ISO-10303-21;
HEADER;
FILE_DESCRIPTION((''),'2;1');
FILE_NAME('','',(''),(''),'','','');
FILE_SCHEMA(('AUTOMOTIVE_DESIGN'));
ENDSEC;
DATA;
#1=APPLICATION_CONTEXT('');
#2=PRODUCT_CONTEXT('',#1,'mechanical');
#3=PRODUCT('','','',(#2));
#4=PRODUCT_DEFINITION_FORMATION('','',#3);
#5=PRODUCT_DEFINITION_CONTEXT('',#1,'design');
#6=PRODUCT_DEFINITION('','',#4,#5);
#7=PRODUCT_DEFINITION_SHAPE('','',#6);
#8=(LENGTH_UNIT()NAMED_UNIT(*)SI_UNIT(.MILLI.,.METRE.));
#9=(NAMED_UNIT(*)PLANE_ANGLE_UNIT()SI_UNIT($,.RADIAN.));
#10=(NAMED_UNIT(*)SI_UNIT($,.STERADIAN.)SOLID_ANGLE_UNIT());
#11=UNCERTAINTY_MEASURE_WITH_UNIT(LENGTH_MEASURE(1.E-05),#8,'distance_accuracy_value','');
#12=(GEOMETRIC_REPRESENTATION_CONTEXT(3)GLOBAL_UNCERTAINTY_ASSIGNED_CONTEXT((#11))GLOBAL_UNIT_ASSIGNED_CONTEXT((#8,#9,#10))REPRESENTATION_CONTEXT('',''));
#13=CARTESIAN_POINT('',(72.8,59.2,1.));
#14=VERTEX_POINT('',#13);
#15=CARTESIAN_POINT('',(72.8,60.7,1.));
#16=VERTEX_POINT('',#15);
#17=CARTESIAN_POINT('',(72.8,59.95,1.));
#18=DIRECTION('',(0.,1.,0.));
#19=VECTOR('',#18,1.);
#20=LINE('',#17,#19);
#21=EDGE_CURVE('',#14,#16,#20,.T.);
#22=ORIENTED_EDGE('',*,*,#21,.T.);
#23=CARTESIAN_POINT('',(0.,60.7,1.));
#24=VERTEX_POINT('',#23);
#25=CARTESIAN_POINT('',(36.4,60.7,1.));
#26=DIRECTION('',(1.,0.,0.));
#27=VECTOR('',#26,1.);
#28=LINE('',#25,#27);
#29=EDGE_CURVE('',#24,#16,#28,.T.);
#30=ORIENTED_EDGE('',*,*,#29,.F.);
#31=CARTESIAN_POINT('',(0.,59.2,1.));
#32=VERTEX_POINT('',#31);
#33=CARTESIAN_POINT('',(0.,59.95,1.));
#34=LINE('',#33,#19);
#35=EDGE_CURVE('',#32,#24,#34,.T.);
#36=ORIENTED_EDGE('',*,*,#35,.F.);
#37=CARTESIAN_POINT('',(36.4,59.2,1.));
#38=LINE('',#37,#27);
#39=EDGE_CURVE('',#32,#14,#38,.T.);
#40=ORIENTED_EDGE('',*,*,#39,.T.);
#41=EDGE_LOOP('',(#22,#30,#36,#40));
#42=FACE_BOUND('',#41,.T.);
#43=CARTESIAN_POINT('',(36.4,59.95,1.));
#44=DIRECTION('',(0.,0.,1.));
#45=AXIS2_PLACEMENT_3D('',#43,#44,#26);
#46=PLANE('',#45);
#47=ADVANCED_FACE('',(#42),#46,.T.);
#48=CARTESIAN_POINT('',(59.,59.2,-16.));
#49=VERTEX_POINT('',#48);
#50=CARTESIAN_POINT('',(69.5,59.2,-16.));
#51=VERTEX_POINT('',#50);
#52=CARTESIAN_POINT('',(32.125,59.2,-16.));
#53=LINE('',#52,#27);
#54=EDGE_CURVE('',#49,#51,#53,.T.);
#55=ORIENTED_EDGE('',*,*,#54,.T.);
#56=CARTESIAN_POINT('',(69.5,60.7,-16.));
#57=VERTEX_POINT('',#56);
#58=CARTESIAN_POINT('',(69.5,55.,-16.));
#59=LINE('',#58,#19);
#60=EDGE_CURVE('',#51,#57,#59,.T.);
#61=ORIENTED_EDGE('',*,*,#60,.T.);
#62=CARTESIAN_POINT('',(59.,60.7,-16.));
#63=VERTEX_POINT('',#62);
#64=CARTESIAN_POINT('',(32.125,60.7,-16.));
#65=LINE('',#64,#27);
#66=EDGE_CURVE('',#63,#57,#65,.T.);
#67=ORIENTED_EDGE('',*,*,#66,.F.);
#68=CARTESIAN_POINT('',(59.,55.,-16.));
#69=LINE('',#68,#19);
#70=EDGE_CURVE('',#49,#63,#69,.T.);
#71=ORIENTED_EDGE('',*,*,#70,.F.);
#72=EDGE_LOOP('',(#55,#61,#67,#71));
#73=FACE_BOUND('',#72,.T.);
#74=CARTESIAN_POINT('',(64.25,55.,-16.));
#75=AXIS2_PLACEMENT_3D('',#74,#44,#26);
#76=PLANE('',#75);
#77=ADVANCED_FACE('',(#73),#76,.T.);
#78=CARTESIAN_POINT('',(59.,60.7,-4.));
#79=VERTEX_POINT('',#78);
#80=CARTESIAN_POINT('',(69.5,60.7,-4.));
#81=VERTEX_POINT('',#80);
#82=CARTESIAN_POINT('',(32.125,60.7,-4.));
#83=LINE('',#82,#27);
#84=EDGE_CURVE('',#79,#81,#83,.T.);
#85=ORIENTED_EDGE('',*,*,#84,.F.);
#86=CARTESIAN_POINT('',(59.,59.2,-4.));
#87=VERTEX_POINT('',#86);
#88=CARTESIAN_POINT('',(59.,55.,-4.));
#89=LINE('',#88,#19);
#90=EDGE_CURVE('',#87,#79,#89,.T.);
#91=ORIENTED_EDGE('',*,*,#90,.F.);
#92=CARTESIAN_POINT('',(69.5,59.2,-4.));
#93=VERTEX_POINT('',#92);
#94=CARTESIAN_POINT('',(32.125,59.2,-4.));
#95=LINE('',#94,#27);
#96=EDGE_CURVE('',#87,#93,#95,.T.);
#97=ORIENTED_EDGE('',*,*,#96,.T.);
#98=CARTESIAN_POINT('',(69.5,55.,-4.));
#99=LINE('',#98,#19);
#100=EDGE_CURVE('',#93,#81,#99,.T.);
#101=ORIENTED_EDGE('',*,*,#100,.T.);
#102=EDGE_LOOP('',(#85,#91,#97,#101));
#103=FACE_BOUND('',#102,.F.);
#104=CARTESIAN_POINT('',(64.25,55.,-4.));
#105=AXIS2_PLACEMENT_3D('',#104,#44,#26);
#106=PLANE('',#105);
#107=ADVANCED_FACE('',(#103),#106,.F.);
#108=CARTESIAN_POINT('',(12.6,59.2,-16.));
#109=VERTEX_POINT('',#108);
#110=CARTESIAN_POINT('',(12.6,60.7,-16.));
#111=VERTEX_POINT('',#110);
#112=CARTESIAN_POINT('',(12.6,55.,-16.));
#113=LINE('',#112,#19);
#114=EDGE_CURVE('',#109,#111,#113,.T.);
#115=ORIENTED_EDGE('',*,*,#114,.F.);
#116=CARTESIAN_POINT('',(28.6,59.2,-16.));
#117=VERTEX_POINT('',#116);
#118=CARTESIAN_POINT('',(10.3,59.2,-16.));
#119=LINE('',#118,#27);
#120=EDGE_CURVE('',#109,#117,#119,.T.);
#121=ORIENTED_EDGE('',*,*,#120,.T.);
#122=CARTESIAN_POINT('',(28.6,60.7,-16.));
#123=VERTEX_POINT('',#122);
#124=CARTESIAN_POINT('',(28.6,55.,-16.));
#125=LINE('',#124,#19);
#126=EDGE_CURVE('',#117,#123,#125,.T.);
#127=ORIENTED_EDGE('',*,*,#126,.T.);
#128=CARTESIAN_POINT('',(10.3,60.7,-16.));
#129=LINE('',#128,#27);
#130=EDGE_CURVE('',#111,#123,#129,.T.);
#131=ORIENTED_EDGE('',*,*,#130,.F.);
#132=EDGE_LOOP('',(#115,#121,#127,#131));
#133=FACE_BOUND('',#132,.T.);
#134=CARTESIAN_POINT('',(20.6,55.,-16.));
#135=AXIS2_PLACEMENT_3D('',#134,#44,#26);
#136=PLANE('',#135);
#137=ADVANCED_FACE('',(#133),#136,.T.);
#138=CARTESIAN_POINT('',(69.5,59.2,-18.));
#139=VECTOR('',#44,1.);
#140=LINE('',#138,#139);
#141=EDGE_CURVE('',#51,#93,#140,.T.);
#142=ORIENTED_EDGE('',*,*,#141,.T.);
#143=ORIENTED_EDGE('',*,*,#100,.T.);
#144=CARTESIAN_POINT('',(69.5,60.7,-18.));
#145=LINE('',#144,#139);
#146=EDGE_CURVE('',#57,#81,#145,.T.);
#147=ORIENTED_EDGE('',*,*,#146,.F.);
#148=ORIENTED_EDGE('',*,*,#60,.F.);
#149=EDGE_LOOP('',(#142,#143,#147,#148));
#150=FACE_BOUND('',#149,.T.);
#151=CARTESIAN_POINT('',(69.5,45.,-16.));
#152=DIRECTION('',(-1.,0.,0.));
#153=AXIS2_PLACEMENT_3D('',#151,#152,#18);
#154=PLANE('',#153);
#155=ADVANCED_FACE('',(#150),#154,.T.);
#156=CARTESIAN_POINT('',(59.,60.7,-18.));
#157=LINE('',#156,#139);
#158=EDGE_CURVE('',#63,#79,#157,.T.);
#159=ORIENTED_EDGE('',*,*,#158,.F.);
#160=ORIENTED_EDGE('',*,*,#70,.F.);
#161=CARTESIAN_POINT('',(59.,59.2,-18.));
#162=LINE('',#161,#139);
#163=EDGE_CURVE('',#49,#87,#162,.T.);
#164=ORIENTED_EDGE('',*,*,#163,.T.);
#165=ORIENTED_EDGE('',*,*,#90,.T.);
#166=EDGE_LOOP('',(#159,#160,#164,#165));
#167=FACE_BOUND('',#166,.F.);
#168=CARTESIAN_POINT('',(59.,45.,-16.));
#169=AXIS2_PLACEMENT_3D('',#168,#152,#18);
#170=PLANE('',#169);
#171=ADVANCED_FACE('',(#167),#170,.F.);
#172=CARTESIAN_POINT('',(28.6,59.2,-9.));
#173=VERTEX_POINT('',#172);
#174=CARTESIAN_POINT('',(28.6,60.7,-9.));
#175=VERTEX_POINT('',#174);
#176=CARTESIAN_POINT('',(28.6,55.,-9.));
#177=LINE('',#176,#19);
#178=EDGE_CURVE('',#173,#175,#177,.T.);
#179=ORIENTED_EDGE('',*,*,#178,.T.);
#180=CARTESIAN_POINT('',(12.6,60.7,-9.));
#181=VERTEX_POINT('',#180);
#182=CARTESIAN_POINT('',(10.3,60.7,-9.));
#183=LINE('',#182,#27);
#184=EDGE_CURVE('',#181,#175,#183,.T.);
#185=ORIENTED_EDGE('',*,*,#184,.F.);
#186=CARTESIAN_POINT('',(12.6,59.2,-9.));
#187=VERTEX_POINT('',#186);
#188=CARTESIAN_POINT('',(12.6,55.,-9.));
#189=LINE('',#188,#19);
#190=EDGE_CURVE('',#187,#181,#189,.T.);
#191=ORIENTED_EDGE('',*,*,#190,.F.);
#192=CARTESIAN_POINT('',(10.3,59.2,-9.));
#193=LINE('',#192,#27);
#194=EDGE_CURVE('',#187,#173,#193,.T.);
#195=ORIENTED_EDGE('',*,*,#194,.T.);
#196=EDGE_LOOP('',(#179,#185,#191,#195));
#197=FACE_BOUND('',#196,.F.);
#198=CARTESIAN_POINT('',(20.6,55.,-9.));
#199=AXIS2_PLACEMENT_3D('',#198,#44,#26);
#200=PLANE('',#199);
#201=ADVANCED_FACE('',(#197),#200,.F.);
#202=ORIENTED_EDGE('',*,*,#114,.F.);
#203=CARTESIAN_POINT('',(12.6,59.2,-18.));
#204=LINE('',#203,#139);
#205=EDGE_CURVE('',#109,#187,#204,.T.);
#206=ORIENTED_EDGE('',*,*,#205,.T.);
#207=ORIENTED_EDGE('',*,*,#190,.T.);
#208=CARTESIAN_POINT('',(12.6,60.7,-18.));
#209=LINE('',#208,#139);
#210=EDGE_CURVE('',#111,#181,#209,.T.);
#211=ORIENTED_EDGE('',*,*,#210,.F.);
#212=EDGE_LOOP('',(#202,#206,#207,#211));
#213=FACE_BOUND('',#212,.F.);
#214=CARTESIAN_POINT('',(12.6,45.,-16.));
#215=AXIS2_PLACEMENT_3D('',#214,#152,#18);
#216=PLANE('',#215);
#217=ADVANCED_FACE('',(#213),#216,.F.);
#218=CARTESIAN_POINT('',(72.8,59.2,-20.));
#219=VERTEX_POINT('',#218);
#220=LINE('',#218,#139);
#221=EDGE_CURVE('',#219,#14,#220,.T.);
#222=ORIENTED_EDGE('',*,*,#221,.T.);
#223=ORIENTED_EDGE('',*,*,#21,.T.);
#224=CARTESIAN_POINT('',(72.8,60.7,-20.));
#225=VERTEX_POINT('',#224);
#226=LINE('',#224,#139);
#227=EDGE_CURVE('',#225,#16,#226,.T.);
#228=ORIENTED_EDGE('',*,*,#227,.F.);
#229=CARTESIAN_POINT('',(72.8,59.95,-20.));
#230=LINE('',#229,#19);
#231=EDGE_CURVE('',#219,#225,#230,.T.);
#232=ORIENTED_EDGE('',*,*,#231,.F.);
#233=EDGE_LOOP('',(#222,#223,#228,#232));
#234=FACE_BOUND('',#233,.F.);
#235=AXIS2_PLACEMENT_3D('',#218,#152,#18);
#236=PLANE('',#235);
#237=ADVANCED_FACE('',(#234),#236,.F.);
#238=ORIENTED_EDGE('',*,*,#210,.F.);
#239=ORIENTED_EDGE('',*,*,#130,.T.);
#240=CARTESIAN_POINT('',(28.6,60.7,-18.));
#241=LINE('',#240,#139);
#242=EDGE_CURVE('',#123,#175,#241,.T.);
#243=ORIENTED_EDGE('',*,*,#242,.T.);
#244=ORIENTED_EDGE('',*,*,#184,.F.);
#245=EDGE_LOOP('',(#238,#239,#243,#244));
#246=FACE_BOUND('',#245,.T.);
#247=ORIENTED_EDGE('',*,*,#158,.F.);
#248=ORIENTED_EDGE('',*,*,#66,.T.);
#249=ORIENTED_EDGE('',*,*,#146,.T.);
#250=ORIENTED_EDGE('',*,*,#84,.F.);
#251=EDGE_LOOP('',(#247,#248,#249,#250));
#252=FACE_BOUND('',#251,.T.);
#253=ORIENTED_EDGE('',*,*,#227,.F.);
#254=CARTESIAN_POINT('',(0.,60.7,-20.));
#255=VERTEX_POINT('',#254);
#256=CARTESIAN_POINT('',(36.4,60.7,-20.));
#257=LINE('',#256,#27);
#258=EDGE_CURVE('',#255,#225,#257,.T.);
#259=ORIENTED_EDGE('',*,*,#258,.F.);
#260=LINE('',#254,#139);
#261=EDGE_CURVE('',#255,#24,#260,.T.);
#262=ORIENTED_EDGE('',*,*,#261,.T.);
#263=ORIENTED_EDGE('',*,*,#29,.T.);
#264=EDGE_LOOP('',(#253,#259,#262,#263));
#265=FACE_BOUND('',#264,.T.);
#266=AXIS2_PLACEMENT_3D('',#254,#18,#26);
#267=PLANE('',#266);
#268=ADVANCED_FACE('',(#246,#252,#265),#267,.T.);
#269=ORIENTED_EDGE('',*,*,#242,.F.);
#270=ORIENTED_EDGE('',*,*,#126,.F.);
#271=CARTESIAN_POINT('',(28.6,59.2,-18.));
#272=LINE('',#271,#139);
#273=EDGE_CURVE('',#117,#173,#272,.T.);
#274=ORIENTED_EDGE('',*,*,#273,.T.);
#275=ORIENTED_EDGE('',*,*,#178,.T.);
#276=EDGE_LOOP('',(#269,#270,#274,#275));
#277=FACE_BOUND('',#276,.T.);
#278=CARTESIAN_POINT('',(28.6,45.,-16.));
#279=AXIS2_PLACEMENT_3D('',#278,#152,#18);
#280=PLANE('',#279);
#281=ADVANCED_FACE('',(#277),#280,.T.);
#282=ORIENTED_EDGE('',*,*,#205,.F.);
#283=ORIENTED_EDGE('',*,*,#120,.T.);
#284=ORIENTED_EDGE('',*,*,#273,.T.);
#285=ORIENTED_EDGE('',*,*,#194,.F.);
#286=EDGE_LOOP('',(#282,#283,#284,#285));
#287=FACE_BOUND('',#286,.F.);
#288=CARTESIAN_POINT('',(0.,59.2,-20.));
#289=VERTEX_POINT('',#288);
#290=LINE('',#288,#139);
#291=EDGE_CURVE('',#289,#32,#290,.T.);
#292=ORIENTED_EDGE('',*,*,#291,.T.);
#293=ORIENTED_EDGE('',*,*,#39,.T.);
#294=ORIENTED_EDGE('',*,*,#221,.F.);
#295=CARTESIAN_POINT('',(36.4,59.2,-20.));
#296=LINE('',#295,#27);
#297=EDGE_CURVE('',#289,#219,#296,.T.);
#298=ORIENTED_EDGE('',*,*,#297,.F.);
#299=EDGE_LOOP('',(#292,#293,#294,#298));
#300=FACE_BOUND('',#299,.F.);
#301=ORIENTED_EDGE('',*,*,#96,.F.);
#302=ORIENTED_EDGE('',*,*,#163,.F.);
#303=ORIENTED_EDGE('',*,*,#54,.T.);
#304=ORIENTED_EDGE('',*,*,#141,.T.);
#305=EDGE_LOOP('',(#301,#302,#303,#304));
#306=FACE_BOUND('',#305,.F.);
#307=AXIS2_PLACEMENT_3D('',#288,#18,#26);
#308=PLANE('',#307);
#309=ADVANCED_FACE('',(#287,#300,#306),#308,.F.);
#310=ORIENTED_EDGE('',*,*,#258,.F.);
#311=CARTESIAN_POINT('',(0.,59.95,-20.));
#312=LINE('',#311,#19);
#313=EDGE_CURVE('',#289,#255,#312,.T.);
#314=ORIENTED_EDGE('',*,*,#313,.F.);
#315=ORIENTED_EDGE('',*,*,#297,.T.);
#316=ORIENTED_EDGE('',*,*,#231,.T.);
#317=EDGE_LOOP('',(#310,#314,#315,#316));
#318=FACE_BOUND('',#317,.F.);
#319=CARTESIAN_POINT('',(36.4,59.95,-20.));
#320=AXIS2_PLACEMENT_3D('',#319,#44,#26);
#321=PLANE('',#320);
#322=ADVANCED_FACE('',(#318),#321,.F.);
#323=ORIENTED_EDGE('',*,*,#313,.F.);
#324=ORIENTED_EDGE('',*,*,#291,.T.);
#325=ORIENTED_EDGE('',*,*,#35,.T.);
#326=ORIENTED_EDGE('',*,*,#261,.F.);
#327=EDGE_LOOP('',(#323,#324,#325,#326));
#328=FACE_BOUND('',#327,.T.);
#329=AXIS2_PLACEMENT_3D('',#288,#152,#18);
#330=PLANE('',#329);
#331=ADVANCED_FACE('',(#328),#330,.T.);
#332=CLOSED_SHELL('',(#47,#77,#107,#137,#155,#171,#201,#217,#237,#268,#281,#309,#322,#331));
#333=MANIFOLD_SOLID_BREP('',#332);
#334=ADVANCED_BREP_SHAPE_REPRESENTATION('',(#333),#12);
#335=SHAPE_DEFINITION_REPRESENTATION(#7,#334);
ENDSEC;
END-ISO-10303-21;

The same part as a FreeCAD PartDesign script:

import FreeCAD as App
import Part
import Sketcher

V = App.Vector
Q = App.Units.Quantity


def add_polygon(sketch, points):
    """Adds a closed chain of lines whose ends are joined by coincident constraints."""
    first, n = sketch.GeometryCount, len(points)
    for a, b in zip(points, points[1:] + points[:1]):
        sketch.addGeometry(Part.LineSegment(App.Vector(*a, 0), App.Vector(*b, 0)), False)
    for i in range(n):
        sketch.addConstraint(Sketcher.Constraint("Coincident", first + i, 2, first + (i + 1) % n, 1))

doc = App.newDocument("Part")
params = doc.addObject("Spreadsheet::Sheet", "Params")
for row, (alias, value) in enumerate([
    ("sketch1_width", "16 mm"),
    ("sketch1_height", "20 mm"),
    ("pad1_length", "7 mm"),
    ("sketch2_height", "20 mm"),
    ("sketch2_width", "10.5 mm"),
    ("pad2_length", "12 mm"),
    ("sketch3_width", "72.8 mm"),
    ("sketch3_height", "1.5 mm"),
    ("pad3_length", "21 mm"),
], start=1):
    params.set(f"A{row}", alias)
    params.set(f"B{row}", "=" + value)
    params.setAlias(f"B{row}", alias)

body = doc.addObject("PartDesign::Body", "Body")

sketch1 = body.newObject("Sketcher::SketchObject", "Sketch")
sketch1.AttachmentSupport = (doc.getObject("XY_Plane"), [""])
sketch1.MapMode = "FlatFace"
sketch1.AttachmentOffset = App.Placement(V(0, 0, -16), App.Rotation())
add_polygon(sketch1, [(13, 65), (13, 45), (29, 45), (29, 65)])
sketch1.addConstraint([
    Sketcher.Constraint("Vertical", 0),
    Sketcher.Constraint("Horizontal", 1),
    Sketcher.Constraint("Vertical", 2),
    Sketcher.Constraint("Horizontal", 3),
    Sketcher.Constraint("DistanceX", 1, 1, 1, 2, Q("16 mm")),
    Sketcher.Constraint("DistanceY", 0, 2, 0, 1, Q("20 mm")),
    Sketcher.Constraint("DistanceY", -1, 1, 0, 2, Q("45 mm")),
    Sketcher.Constraint("DistanceX", -1, 1, 0, 2, Q("12.6 mm")),
])
sketch1.setExpression("Constraints[8]", "Params.sketch1_width")
sketch1.setExpression("Constraints[9]", "Params.sketch1_height")
pad1 = body.newObject("PartDesign::Pad", "Pad")
pad1.Profile = sketch1
pad1.setExpression("Length", "Params.pad1_length")
body2 = doc.addObject("PartDesign::Body", "Body001")
body2.AllowCompound = True

sketch2 = body2.newObject("Sketcher::SketchObject", "Sketch001")
sketch2.AttachmentSupport = (doc.getObject("XY_Plane001"), [""])
sketch2.MapMode = "FlatFace"
sketch2.AttachmentOffset = App.Placement(V(0, 0, -16), App.Rotation())
add_polygon(sketch2, [(59, 65), (59, 45), (70, 45), (70, 65)])
sketch2.addConstraint([
    Sketcher.Constraint("Vertical", 0),
    Sketcher.Constraint("Horizontal", 1),
    Sketcher.Constraint("Vertical", 2),
    Sketcher.Constraint("Horizontal", 3),
    Sketcher.Constraint("DistanceY", 0, 2, 0, 1, Q("20 mm")),
    Sketcher.Constraint("DistanceX", 1, 1, 1, 2, Q("10.5 mm")),
    Sketcher.Constraint("DistanceX", -1, 1, 0, 2, Q("59 mm")),
    Sketcher.Constraint("DistanceY", -1, 1, 0, 2, Q("45 mm")),
])
sketch2.setExpression("Constraints[8]", "Params.sketch2_height")
sketch2.setExpression("Constraints[9]", "Params.sketch2_width")
pad2 = body2.newObject("PartDesign::Pad", "Pad001")
pad2.Profile = sketch2
pad2.setExpression("Length", "Params.pad2_length")
doc.recompute()

boolean = body2.newObject("PartDesign::Boolean", "Boolean")
boolean.Type = "Fuse"
boolean.addObjects([body])
body3 = doc.addObject("PartDesign::Body", "Body002")

sketch3 = body3.newObject("Sketcher::SketchObject", "Sketch002")
sketch3.AttachmentSupport = (doc.getObject("XY_Plane002"), [""])
sketch3.MapMode = "FlatFace"
sketch3.AttachmentOffset = App.Placement(V(0, 0, -20), App.Rotation())
add_polygon(sketch3, [(0, 60.7), (0, 59.2), (72.8, 59.2), (72.8, 60.7)])
sketch3.addConstraint([
    Sketcher.Constraint("Vertical", 0),
    Sketcher.Constraint("Horizontal", 1),
    Sketcher.Constraint("Vertical", 2),
    Sketcher.Constraint("Horizontal", 3),
    Sketcher.Constraint("PointOnObject", 0, 2, -2),
    Sketcher.Constraint("DistanceX", 1, 1, 1, 2, Q("72.8 mm")),
    Sketcher.Constraint("DistanceY", 0, 2, 0, 1, Q("1.5 mm")),
    Sketcher.Constraint("DistanceY", -1, 1, 0, 2, Q("59.2 mm")),
])
sketch3.setExpression("Constraints[9]", "Params.sketch3_width")
sketch3.setExpression("Constraints[10]", "Params.sketch3_height")
pad3 = body3.newObject("PartDesign::Pad", "Pad002")
pad3.Profile = sketch3
pad3.setExpression("Length", "Params.pad3_length")
doc.recompute()

boolean2 = body3.newObject("PartDesign::Boolean", "Boolean001")
boolean2.Type = "Cut"
boolean2.addObjects([body2])

doc.recompute()
